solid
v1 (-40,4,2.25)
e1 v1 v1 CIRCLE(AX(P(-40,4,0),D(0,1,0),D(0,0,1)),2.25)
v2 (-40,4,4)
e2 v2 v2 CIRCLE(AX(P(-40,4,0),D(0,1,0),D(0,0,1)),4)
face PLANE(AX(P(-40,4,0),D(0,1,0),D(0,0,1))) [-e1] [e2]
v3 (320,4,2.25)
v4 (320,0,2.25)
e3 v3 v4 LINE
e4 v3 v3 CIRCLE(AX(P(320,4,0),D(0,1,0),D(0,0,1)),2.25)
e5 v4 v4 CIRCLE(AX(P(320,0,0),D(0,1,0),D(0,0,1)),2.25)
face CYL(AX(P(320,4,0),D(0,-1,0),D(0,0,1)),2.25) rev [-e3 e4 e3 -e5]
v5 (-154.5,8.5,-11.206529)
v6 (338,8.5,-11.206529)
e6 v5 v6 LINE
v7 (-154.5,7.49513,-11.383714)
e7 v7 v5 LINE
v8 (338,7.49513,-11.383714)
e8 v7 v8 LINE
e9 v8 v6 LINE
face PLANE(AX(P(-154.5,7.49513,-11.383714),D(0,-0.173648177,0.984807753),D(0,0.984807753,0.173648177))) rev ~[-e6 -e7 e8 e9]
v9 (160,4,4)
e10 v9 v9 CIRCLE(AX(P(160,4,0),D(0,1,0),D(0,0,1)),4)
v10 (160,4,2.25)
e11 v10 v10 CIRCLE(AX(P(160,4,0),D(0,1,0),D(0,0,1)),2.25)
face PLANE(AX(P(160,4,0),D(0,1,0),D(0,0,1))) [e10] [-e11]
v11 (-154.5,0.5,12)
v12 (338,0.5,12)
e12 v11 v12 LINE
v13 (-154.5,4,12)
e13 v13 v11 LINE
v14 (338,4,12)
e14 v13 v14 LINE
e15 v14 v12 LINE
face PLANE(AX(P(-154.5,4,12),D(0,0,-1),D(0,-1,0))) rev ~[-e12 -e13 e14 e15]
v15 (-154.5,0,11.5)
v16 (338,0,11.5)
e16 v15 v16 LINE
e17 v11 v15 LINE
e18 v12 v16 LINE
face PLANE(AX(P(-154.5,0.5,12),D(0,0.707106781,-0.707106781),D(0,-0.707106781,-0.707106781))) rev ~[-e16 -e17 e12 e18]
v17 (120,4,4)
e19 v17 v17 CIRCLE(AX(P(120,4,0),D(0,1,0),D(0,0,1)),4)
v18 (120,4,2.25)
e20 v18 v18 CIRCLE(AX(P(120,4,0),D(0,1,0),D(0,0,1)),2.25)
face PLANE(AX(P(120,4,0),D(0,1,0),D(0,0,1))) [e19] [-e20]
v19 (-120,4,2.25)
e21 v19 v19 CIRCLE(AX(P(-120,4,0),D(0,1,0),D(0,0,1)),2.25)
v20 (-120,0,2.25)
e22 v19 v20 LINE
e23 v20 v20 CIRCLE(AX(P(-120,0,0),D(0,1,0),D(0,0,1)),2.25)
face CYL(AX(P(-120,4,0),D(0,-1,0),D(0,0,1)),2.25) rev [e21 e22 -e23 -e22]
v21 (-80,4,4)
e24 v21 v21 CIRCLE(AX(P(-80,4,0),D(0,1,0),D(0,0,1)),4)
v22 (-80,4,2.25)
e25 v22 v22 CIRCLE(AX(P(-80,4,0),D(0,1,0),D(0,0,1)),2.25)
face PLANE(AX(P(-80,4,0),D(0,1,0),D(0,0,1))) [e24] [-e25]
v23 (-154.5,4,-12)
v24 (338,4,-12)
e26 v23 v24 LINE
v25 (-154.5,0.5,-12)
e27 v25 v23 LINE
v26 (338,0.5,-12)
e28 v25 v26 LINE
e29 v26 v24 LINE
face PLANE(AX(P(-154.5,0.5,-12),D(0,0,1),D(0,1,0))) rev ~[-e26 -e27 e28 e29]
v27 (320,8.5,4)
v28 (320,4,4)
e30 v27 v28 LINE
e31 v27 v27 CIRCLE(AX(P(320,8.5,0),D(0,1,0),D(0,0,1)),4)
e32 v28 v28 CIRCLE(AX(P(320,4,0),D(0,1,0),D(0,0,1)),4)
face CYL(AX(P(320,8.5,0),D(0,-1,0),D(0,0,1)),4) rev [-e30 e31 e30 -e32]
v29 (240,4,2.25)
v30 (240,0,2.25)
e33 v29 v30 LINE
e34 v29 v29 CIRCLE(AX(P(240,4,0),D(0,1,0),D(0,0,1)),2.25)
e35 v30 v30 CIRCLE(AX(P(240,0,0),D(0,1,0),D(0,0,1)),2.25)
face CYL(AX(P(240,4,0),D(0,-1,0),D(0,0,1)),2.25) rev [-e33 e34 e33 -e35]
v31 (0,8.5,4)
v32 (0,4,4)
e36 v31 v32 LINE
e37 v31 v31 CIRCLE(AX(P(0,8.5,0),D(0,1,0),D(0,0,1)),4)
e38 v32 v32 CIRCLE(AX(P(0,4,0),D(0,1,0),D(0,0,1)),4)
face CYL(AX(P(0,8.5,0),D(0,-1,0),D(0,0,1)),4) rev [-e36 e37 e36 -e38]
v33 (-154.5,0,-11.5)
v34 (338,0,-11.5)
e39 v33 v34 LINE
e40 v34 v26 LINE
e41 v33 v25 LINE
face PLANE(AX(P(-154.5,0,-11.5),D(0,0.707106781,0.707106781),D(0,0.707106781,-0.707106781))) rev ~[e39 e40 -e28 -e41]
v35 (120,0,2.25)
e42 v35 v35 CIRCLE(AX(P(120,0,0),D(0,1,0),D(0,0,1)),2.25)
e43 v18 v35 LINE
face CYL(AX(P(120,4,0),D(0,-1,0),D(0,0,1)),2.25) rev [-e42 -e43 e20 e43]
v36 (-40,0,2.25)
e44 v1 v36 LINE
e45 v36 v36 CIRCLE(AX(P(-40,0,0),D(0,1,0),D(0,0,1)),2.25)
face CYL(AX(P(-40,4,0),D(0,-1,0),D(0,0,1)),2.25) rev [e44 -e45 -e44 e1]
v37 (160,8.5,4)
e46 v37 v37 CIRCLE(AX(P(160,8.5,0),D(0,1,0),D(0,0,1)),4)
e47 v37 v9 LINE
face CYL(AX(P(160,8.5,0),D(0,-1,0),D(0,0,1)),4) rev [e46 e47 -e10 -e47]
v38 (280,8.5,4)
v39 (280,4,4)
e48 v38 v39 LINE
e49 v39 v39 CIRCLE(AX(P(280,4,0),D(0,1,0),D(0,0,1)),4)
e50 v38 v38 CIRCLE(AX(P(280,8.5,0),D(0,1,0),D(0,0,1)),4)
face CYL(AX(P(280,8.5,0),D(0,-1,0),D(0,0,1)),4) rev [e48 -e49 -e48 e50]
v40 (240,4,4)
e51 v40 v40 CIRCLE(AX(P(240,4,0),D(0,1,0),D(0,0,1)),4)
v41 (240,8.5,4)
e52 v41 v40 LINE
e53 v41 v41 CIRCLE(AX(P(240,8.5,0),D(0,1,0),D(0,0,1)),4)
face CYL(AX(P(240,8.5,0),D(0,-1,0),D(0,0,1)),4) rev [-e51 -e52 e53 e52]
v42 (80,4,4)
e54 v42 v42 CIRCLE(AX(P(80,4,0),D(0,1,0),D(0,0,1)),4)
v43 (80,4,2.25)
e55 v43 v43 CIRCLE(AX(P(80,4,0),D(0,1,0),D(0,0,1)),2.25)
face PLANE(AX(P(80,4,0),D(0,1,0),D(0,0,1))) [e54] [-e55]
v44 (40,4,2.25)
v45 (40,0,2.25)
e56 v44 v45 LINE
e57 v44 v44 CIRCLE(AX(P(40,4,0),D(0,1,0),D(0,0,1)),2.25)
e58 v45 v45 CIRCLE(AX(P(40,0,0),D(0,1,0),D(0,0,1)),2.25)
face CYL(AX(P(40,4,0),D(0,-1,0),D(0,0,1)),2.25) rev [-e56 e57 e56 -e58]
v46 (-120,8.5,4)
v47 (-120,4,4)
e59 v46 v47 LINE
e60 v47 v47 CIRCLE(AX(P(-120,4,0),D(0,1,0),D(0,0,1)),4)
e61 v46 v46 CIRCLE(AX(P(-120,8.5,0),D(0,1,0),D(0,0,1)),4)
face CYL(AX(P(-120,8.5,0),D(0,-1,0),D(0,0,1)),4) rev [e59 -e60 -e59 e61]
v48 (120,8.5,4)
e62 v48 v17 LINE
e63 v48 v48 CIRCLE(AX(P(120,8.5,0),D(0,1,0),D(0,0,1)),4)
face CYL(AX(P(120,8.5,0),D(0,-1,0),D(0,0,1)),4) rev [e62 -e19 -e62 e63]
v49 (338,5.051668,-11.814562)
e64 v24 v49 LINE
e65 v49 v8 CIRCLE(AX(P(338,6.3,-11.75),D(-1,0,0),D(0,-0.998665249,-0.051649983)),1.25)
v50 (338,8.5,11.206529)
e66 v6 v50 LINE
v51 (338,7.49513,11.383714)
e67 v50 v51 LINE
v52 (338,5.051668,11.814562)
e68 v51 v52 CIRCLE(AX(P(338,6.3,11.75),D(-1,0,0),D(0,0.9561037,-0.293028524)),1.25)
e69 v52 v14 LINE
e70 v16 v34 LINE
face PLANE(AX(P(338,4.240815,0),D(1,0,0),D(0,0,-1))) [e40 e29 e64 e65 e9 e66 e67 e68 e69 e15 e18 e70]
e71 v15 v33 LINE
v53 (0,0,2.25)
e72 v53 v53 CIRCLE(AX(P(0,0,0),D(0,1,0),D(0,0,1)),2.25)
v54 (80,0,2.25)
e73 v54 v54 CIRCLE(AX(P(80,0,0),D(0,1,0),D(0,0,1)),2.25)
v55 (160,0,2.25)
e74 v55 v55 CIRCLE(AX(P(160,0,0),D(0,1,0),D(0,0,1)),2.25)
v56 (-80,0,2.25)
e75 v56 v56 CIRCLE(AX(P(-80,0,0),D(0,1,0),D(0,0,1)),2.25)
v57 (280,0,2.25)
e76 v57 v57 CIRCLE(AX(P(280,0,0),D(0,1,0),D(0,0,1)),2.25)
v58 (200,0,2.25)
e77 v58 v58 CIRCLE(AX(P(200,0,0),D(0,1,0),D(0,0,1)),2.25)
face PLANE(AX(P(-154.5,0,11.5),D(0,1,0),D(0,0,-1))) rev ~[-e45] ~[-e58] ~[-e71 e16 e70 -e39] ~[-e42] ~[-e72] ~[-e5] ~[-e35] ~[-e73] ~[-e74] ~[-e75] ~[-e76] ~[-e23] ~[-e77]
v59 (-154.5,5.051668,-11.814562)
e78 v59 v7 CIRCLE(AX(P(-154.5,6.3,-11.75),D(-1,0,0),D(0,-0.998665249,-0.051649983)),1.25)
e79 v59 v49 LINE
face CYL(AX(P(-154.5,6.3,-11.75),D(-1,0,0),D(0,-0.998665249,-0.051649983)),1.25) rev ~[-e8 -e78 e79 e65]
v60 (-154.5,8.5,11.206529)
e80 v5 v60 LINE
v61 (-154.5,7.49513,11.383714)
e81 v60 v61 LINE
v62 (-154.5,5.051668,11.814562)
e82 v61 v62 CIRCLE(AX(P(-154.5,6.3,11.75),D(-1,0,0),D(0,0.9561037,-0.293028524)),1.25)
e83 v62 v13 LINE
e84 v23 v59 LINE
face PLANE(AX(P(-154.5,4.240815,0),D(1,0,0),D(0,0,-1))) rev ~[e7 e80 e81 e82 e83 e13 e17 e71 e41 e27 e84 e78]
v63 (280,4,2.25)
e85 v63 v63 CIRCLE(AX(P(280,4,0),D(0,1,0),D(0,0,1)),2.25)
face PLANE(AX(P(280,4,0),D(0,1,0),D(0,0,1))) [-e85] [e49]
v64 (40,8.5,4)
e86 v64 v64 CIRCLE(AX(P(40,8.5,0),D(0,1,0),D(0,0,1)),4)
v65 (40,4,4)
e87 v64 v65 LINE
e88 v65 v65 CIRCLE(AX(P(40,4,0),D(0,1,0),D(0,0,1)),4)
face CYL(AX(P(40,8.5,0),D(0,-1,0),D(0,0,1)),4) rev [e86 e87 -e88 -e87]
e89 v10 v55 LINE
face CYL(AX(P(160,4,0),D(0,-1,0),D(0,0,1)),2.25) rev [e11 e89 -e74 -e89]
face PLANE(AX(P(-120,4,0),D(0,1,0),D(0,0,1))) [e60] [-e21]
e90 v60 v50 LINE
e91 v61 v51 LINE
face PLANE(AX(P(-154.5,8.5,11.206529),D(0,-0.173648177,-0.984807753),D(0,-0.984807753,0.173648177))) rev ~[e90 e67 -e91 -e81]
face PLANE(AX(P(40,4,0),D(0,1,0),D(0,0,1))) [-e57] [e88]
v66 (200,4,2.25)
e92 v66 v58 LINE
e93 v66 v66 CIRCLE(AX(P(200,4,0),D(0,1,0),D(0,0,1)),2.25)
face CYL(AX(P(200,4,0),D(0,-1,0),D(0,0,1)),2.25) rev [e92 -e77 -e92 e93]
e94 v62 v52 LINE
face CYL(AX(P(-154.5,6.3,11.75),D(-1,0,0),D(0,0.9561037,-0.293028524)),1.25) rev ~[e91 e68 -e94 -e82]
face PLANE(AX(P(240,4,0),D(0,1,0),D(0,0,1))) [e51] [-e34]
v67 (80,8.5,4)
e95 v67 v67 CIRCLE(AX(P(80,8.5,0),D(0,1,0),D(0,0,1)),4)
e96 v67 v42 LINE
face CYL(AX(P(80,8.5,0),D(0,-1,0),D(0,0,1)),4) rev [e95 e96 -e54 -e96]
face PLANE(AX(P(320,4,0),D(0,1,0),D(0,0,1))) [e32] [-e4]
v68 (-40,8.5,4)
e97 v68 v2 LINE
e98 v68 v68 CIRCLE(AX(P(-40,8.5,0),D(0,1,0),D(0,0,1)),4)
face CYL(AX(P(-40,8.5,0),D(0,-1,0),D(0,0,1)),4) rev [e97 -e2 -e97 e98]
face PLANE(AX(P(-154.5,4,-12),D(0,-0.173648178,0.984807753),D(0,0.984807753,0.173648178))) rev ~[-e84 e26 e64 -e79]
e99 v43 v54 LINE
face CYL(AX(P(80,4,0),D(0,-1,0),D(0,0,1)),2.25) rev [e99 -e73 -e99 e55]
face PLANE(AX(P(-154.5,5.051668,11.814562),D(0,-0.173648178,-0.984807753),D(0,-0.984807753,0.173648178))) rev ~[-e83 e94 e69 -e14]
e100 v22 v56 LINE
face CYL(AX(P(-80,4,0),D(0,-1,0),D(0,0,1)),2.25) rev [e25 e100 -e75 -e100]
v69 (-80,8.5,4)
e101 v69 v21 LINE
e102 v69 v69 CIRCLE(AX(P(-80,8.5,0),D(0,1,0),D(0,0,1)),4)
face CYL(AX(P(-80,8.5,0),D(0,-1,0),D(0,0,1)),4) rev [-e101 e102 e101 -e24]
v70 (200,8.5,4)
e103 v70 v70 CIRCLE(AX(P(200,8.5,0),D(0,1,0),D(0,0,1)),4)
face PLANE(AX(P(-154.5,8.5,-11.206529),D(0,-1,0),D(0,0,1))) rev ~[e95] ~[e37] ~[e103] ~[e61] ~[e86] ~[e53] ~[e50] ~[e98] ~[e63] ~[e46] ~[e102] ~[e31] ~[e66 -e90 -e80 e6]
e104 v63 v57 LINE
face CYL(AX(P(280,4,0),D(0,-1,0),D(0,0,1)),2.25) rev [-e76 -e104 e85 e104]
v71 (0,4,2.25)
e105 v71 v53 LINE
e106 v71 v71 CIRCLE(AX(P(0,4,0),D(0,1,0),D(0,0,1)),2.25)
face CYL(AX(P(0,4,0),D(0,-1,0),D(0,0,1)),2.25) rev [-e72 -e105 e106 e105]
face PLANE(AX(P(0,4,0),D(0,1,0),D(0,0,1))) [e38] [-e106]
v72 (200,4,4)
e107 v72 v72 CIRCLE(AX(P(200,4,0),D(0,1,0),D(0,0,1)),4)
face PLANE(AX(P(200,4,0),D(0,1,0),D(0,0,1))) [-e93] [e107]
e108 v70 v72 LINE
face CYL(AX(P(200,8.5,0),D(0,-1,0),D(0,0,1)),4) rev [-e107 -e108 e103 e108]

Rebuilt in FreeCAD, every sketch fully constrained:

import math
import FreeCAD as App
import Part
import Sketcher

V = App.Vector
Q = App.Units.Quantity

doc = App.newDocument("Part")
body = doc.addObject("PartDesign::Body", "Body")

sketch1 = body.newObject("Sketcher::SketchObject", "Sketch")
sketch1.AttachmentSupport = (doc.getObject("YZ_Plane"), [""])
sketch1.MapMode = "FlatFace"
sketch1.AttachmentOffset = App.Placement(V(0, 0, -15), App.Rotation())
sketch1.addGeometry(Part.LineSegment(V(4, 12, 0), V(0.5, 12, 0)), False)
sketch1.addGeometry(Part.LineSegment(V(0.5, 12, 0), V(0, 11.5, 0)), False)
sketch1.addGeometry(Part.LineSegment(V(0, 11.5, 0), V(0, -11.5, 0)), False)
sketch1.addGeometry(Part.LineSegment(V(0, -11.5, 0), V(0.5, -12, 0)), False)
sketch1.addGeometry(Part.LineSegment(V(0.5, -12, 0), V(4, -12, 0)), False)
sketch1.addGeometry(Part.LineSegment(V(4, -12, 0), V(5.051668, -11.814562, 0)), False)
sketch1.addGeometry(Part.ArcOfCircle(Part.Circle(V(6.3, -11.75, 0), V(0, 0, 1), 1.25), math.radians(17.039357), math.radians(182.960643)), False)
sketch1.addGeometry(Part.LineSegment(V(7.49513, -11.383714, 0), V(8.5, -11.206529, 0)), False)
sketch1.addGeometry(Part.LineSegment(V(8.5, -11.206529, 0), V(8.5, 11.206529, 0)), False)
sketch1.addGeometry(Part.LineSegment(V(8.5, 11.206529, 0), V(7.49513, 11.383714, 0)), False)
sketch1.addGeometry(Part.ArcOfCircle(Part.Circle(V(6.3, 11.75, 0), V(0, 0, 1), 1.25), math.radians(177.039357), math.radians(342.960643)), False)
sketch1.addGeometry(Part.LineSegment(V(5.051668, 11.814562, 0), V(4, 12, 0)), False)
sketch1.addConstraint(Sketcher.Constraint("Coincident", 0, 2, 1, 1))
sketch1.addConstraint(Sketcher.Constraint("Coincident", 1, 2, 2, 1))
sketch1.addConstraint(Sketcher.Constraint("Coincident", 2, 2, 3, 1))
sketch1.addConstraint(Sketcher.Constraint("Coincident", 3, 2, 4, 1))
sketch1.addConstraint(Sketcher.Constraint("Coincident", 4, 2, 5, 1))
sketch1.addConstraint(Sketcher.Constraint("Coincident", 5, 2, 6, 2))
sketch1.addConstraint(Sketcher.Constraint("Coincident", 6, 1, 7, 1))
sketch1.addConstraint(Sketcher.Constraint("Coincident", 7, 2, 8, 1))
sketch1.addConstraint(Sketcher.Constraint("Coincident", 8, 2, 9, 1))
sketch1.addConstraint(Sketcher.Constraint("Coincident", 9, 2, 10, 2))
sketch1.addConstraint(Sketcher.Constraint("Coincident", 10, 1, 11, 1))
sketch1.addConstraint(Sketcher.Constraint("Coincident", 11, 2, 0, 1))
sketch1.addConstraint(Sketcher.Constraint("Horizontal", 0))
sketch1.addConstraint(Sketcher.Constraint("Vertical", 2))
sketch1.addConstraint(Sketcher.Constraint("Horizontal", 4))
sketch1.addConstraint(Sketcher.Constraint("Vertical", 8))
sketch1.addConstraint(Sketcher.Constraint("Equal", 6, 10))
sketch1.addConstraint(Sketcher.Constraint("Symmetric", 1, 2, 2, 2, -1, 1))
sketch1.addConstraint(Sketcher.Constraint("Symmetric", 6, 3, 10, 3, -1))
sketch1.addConstraint(Sketcher.Constraint("Symmetric", 0, 2, 3, 2, -1))
sketch1.addConstraint(Sketcher.Constraint("Perpendicular", 1, 3))
sketch1.addConstraint(Sketcher.Constraint("Parallel", 5, 7))
sketch1.addConstraint(Sketcher.Constraint("Parallel", 9, 11))
sketch1.addConstraint(Sketcher.Constraint("Vertical", 6, 1, 9, 2))
sketch1.addConstraint(Sketcher.Constraint("Vertical", 5, 2, 10, 1))
sketch1.addConstraint(Sketcher.Constraint("Vertical", 4, 2, 11, 2))
sketch1.addConstraint(Sketcher.Constraint("DistanceY", 2, 2, 2, 1, 23.0))
sketch1.addConstraint(Sketcher.Constraint("Angle", 5, Q("10 deg")))
sketch1.addConstraint(Sketcher.Constraint("Radius", 6, 1.25))
sketch1.addConstraint(Sketcher.Constraint("DistanceX", 0, 2, 0, 1, 3.5))
sketch1.addConstraint(Sketcher.Constraint("DistanceY", -1, 1, 0, 2, 12.0))
sketch1.addConstraint(Sketcher.Constraint("DistanceX", 3, 2, 7, 2, 8.0))
sketch1.addConstraint(Sketcher.Constraint("DistanceX", -1, 1, 6, 3, 6.3))
sketch1.addConstraint(Sketcher.Constraint("DistanceY", 6, 3, 10, 3, 23.5))
sketch1.addConstraint(Sketcher.Constraint("DistanceY", 8, 1, 8, 2, 22.413057))
pad1 = body.newObject("PartDesign::Pad", "Pad")
pad1.Profile = sketch1
pad1.Type = "TwoLengths"
pad1.Length = 353
pad1.Length2 = 139.5

sketch2 = body.newObject("Sketcher::SketchObject", "Sketch001")
sketch2.AttachmentSupport = (doc.getObject("XY_Plane"), [""])
sketch2.MapMode = "FlatFace"
sketch2.addGeometry(Part.LineSegment(V(44, 8.5, 0), V(40, 8.5, 0)), False)
sketch2.addGeometry(Part.LineSegment(V(40, 8.5, 0), V(40, 0, 0)), False)
sketch2.addGeometry(Part.LineSegment(V(40, 0, 0), V(42.25, 0, 0)), False)
sketch2.addGeometry(Part.LineSegment(V(42.25, 0, 0), V(42.25, 4, 0)), False)
sketch2.addGeometry(Part.LineSegment(V(42.25, 4, 0), V(44, 4, 0)), False)
sketch2.addGeometry(Part.LineSegment(V(44, 4, 0), V(44, 8.5, 0)), False)
sketch2.addGeometry(Part.LineSegment(V(40, 0, 0), V(40, 8.5, 0)), True)
sketch2.addConstraint(Sketcher.Constraint("Coincident", 0, 2, 1, 1))
sketch2.addConstraint(Sketcher.Constraint("Coincident", 1, 2, 2, 1))
sketch2.addConstraint(Sketcher.Constraint("Coincident", 2, 2, 3, 1))
sketch2.addConstraint(Sketcher.Constraint("Coincident", 3, 2, 4, 1))
sketch2.addConstraint(Sketcher.Constraint("Coincident", 4, 2, 5, 1))
sketch2.addConstraint(Sketcher.Constraint("Coincident", 5, 2, 0, 1))
sketch2.addConstraint(Sketcher.Constraint("Horizontal", 0))
sketch2.addConstraint(Sketcher.Constraint("Vertical", 1))
sketch2.addConstraint(Sketcher.Constraint("Horizontal", 2))
sketch2.addConstraint(Sketcher.Constraint("Vertical", 3))
sketch2.addConstraint(Sketcher.Constraint("Horizontal", 4))
sketch2.addConstraint(Sketcher.Constraint("Vertical", 5))
sketch2.addConstraint(Sketcher.Constraint("Vertical", 6))
sketch2.addConstraint(Sketcher.Constraint("Coincident", 6, 1, 1, 2))
sketch2.addConstraint(Sketcher.Constraint("PointOnObject", 1, 2, -1))
sketch2.addConstraint(Sketcher.Constraint("Horizontal", 5, 2, 6, 2))
sketch2.addConstraint(Sketcher.Constraint("Equal", 0, 3))
sketch2.addConstraint(Sketcher.Constraint("DistanceX", 0, 2, 0, 1, 4.0))
sketch2.addConstraint(Sketcher.Constraint("DistanceY", 1, 2, 1, 1, 8.5))
sketch2.addConstraint(Sketcher.Constraint("DistanceX", -1, 1, 0, 2, 40.0))
sketch2.addConstraint(Sketcher.Constraint("DistanceX", 2, 1, 2, 2, 2.25))
groove = body.newObject("PartDesign::Groove", "Groove")
groove.Profile = sketch2
groove.ReferenceAxis = (sketch2, ["Axis0"])
groove.Angle = 360
doc.recompute()

linearpattern = body.newObject("PartDesign::LinearPattern", "LinearPattern")
linearpattern.Originals = [groove]
linearpattern.Direction = (doc.getObject("X_Axis"), [""])
linearpattern.Mode = "offset"
linearpattern.Offset = 40
linearpattern.Occurrences = 8
body.Tip = linearpattern
doc.recompute()

linearpattern2 = body.newObject("PartDesign::LinearPattern", "LinearPattern001")
linearpattern2.Originals = [groove]
linearpattern2.Direction = (doc.getObject("X_Axis"), [""])
linearpattern2.Mode = "offset"
linearpattern2.Offset = 40
linearpattern2.Occurrences = 5
linearpattern2.Reversed = True
body.Tip = linearpattern2

doc.recompute()
